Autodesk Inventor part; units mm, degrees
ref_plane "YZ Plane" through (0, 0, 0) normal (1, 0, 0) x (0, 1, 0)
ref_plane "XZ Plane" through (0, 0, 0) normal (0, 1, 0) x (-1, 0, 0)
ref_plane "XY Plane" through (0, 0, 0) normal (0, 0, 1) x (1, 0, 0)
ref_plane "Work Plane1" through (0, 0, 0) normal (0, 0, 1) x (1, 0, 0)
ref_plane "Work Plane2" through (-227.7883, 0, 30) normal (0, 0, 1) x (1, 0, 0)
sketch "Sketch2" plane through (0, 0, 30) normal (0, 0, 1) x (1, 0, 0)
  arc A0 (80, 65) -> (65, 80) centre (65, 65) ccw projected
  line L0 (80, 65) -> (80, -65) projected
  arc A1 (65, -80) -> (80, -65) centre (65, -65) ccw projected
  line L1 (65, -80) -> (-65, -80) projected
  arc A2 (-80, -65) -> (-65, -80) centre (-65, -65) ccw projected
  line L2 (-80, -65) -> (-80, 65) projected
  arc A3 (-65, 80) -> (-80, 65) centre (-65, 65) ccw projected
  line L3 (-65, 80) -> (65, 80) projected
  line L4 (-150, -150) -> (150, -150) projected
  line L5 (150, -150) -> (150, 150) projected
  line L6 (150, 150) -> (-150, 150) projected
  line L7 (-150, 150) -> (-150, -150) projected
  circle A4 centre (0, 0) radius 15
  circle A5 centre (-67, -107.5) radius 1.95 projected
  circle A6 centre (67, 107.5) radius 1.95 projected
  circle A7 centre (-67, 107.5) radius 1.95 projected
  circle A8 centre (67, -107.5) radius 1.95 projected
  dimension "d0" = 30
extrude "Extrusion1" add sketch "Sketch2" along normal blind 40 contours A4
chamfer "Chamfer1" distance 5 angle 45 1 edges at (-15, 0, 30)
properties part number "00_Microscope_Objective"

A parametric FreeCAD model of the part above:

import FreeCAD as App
import Part
import Sketcher


def edges_at(feature, points):
    """Names of the edges that pass closest to the given points."""
    edges = feature.Shape.Edges
    near = lambda p: min(range(len(edges)), key=lambda i: edges[i].distToShape(Part.Vertex(*p))[0])
    return sorted({f"Edge{near(p) + 1}" for p in points})

doc = App.newDocument("Part")
body = doc.addObject("PartDesign::Body", "Body")

# Sketch on XY plane
sketch1 = body.newObject("Sketcher::SketchObject", "Sketch")
sketch1.AttachmentSupport = (doc.getObject("XY_Plane"), [""])
sketch1.MapMode = "FlatFace"
sketch1.AttachmentOffset = App.Placement(App.Vector(0, 0, 30), App.Rotation())
sketch1.addGeometry(Part.Circle(App.Vector(0, 0, 0), App.Vector(0, 0, 1), 15), False)
sketch1.addConstraint([
    Sketcher.Constraint("Coincident", 0, 3, -1, 1),
    Sketcher.Constraint("Diameter", 0, 30.0),
])
pad1 = body.newObject("PartDesign::Pad", "Pad")
pad1.Profile = sketch1
pad1.Length = 40
doc.recompute()

chamfer = body.newObject("PartDesign::Chamfer", "Chamfer")
chamfer.Base = (pad1, edges_at(pad1, [(-15, 0, 30)]))
chamfer.Size = 5

doc.recompute()
